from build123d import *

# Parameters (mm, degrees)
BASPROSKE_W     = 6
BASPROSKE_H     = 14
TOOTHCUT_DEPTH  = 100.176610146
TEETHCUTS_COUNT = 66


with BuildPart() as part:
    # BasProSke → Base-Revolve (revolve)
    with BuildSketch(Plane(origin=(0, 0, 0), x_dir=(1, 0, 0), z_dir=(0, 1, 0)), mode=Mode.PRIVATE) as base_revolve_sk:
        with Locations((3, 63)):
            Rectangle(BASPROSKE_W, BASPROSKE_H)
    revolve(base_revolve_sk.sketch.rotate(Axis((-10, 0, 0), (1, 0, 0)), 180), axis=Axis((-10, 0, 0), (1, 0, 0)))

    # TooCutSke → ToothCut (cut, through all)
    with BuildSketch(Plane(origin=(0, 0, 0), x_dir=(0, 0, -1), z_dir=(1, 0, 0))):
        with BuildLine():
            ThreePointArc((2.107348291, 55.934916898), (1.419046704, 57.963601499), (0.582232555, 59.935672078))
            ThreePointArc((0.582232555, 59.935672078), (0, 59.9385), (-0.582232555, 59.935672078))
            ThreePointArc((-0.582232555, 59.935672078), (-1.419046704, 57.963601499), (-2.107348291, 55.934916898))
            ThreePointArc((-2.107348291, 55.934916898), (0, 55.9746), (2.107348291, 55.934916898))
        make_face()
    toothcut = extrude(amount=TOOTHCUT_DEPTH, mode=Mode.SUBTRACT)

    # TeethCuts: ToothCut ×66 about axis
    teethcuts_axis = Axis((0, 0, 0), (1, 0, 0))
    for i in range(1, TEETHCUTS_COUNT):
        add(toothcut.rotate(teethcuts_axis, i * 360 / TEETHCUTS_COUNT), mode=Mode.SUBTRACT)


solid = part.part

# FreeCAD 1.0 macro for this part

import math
import FreeCAD as App
import Part
import Sketcher
Q = App.Units.Quantity


def add_polygon(sketch, points):
    """Adds a closed chain of lines whose ends are joined by coincident constraints."""
    first, n = sketch.GeometryCount, len(points)
    for a, b in zip(points, points[1:] + points[:1]):
        sketch.addGeometry(Part.LineSegment(App.Vector(*a, 0), App.Vector(*b, 0)), False)
    for i in range(n):
        sketch.addConstraint(Sketcher.Constraint("Coincident", first + i, 2, first + (i + 1) % n, 1))

doc = App.newDocument("Part")
params = doc.addObject("Spreadsheet::Sheet", "Params")
for row, (alias, value) in enumerate([
    ("sketch1_width", "6 mm"),
    ("sketch1_height", "14 mm"),
    ("revolution_angle", "360 deg"),
], start=1):
    params.set(f"A{row}", alias)
    params.set(f"B{row}", "=" + value)
    params.setAlias(f"B{row}", alias)

body = doc.addObject("PartDesign::Body", "Body")

# Sketch on XZ plane
sketch1 = body.newObject("Sketcher::SketchObject", "Sketch")
sketch1.AttachmentSupport = (doc.getObject("XZ_Plane"), [""])
sketch1.MapMode = "FlatFace"
add_polygon(sketch1, [(0, -70), (0, -56), (6, -56), (6, -70)])  # lines 0-3
sketch1.addConstraint([
    Sketcher.Constraint("Vertical", 0),
    Sketcher.Constraint("Horizontal", 1),
    Sketcher.Constraint("Vertical", 2),
    Sketcher.Constraint("Horizontal", 3),
    Sketcher.Constraint("PointOnObject", 0, 2, -2),
    Sketcher.Constraint("DistanceX", 1, 1, 1, 2, Q("6 mm")),
    Sketcher.Constraint("DistanceY", 0, 1, 0, 2, Q("14 mm")),
    Sketcher.Constraint("DistanceY", 0, 2, -1, 1, Q("56 mm")),
])
sketch1.setExpression("Constraints[9]", "Params.sketch1_width")
sketch1.setExpression("Constraints[10]", "Params.sketch1_height")
revolution = body.newObject("PartDesign::Revolution", "Revolution")
revolution.Profile = sketch1
revolution.ReferenceAxis = (sketch1, ["H_Axis"])
revolution.setExpression("Angle", "Params.revolution_angle")

# Sketch on YZ plane
sketch2 = body.newObject("Sketcher::SketchObject", "Sketch001")
sketch2.AttachmentSupport = (doc.getObject("YZ_Plane"), [""])
sketch2.MapMode = "FlatFace"
sketch2.addGeometry([
    Part.ArcOfCircle(Part.Circle(App.Vector(47.7, 25.6, 0), App.Vector(0, 0, 1), 28.9), math.radians(-73.38), math.radians(-64.88)),
    Part.ArcOfCircle(Part.Circle(App.Vector(0, 0, 0), App.Vector(0, 0, 1), 59.9), math.radians(-0.56), math.radians(0.56)),
    Part.ArcOfCircle(Part.Circle(App.Vector(47.7, -25.6, 0), App.Vector(0, 0, 1), 28.9), math.radians(64.88), math.radians(73.38)),
    Part.ArcOfCircle(Part.Circle(App.Vector(0, 0, 0), App.Vector(0, 0, 1), 56), math.radians(-2.16), math.radians(2.16)),
], False)
sketch2.addConstraint([
    Sketcher.Constraint("Coincident", 0, 2, 1, 1),
    Sketcher.Constraint("Coincident", 1, 2, 2, 1),
    Sketcher.Constraint("Coincident", 2, 2, 3, 2),
    Sketcher.Constraint("Coincident", 3, 1, 0, 1),
    Sketcher.Constraint("Coincident", 3, 3, -1, 1),
    Sketcher.Constraint("Equal", 0, 2),
    Sketcher.Constraint("Symmetric", 0, 3, 2, 3, -1),
    Sketcher.Constraint("PointOnObject", 1, 3, -1),
    Sketcher.Constraint("Radius", 0, Q("28.875 mm")),
    Sketcher.Constraint("Radius", 3, Q("55.974601 mm")),
    Sketcher.Constraint("Radius", 1, Q("59.938489 mm")),
    Sketcher.Constraint("DistanceY", -1, 1, 0, 3, Q("25.562001 mm")),
    Sketcher.Constraint("DistanceX", -1, 1, 0, 3, Q("47.678238 mm")),
    Sketcher.Constraint("DistanceY", 2, 3, 0, 2, Q("24.979768 mm")),
])
pocket1 = body.newObject("PartDesign::Pocket", "Pocket")
pocket1.Profile = sketch2
pocket1.Type = "ThroughAll"
pocket1.Reversed = True
doc.recompute()

polarpattern = body.newObject("PartDesign::PolarPattern", "PolarPattern")
polarpattern.Originals = [pocket1]
polarpattern.Axis = (doc.getObject("X_Axis"), [""])
polarpattern.Angle = 360
polarpattern.Occurrences = 66
body.Tip = polarpattern

doc.recompute()
